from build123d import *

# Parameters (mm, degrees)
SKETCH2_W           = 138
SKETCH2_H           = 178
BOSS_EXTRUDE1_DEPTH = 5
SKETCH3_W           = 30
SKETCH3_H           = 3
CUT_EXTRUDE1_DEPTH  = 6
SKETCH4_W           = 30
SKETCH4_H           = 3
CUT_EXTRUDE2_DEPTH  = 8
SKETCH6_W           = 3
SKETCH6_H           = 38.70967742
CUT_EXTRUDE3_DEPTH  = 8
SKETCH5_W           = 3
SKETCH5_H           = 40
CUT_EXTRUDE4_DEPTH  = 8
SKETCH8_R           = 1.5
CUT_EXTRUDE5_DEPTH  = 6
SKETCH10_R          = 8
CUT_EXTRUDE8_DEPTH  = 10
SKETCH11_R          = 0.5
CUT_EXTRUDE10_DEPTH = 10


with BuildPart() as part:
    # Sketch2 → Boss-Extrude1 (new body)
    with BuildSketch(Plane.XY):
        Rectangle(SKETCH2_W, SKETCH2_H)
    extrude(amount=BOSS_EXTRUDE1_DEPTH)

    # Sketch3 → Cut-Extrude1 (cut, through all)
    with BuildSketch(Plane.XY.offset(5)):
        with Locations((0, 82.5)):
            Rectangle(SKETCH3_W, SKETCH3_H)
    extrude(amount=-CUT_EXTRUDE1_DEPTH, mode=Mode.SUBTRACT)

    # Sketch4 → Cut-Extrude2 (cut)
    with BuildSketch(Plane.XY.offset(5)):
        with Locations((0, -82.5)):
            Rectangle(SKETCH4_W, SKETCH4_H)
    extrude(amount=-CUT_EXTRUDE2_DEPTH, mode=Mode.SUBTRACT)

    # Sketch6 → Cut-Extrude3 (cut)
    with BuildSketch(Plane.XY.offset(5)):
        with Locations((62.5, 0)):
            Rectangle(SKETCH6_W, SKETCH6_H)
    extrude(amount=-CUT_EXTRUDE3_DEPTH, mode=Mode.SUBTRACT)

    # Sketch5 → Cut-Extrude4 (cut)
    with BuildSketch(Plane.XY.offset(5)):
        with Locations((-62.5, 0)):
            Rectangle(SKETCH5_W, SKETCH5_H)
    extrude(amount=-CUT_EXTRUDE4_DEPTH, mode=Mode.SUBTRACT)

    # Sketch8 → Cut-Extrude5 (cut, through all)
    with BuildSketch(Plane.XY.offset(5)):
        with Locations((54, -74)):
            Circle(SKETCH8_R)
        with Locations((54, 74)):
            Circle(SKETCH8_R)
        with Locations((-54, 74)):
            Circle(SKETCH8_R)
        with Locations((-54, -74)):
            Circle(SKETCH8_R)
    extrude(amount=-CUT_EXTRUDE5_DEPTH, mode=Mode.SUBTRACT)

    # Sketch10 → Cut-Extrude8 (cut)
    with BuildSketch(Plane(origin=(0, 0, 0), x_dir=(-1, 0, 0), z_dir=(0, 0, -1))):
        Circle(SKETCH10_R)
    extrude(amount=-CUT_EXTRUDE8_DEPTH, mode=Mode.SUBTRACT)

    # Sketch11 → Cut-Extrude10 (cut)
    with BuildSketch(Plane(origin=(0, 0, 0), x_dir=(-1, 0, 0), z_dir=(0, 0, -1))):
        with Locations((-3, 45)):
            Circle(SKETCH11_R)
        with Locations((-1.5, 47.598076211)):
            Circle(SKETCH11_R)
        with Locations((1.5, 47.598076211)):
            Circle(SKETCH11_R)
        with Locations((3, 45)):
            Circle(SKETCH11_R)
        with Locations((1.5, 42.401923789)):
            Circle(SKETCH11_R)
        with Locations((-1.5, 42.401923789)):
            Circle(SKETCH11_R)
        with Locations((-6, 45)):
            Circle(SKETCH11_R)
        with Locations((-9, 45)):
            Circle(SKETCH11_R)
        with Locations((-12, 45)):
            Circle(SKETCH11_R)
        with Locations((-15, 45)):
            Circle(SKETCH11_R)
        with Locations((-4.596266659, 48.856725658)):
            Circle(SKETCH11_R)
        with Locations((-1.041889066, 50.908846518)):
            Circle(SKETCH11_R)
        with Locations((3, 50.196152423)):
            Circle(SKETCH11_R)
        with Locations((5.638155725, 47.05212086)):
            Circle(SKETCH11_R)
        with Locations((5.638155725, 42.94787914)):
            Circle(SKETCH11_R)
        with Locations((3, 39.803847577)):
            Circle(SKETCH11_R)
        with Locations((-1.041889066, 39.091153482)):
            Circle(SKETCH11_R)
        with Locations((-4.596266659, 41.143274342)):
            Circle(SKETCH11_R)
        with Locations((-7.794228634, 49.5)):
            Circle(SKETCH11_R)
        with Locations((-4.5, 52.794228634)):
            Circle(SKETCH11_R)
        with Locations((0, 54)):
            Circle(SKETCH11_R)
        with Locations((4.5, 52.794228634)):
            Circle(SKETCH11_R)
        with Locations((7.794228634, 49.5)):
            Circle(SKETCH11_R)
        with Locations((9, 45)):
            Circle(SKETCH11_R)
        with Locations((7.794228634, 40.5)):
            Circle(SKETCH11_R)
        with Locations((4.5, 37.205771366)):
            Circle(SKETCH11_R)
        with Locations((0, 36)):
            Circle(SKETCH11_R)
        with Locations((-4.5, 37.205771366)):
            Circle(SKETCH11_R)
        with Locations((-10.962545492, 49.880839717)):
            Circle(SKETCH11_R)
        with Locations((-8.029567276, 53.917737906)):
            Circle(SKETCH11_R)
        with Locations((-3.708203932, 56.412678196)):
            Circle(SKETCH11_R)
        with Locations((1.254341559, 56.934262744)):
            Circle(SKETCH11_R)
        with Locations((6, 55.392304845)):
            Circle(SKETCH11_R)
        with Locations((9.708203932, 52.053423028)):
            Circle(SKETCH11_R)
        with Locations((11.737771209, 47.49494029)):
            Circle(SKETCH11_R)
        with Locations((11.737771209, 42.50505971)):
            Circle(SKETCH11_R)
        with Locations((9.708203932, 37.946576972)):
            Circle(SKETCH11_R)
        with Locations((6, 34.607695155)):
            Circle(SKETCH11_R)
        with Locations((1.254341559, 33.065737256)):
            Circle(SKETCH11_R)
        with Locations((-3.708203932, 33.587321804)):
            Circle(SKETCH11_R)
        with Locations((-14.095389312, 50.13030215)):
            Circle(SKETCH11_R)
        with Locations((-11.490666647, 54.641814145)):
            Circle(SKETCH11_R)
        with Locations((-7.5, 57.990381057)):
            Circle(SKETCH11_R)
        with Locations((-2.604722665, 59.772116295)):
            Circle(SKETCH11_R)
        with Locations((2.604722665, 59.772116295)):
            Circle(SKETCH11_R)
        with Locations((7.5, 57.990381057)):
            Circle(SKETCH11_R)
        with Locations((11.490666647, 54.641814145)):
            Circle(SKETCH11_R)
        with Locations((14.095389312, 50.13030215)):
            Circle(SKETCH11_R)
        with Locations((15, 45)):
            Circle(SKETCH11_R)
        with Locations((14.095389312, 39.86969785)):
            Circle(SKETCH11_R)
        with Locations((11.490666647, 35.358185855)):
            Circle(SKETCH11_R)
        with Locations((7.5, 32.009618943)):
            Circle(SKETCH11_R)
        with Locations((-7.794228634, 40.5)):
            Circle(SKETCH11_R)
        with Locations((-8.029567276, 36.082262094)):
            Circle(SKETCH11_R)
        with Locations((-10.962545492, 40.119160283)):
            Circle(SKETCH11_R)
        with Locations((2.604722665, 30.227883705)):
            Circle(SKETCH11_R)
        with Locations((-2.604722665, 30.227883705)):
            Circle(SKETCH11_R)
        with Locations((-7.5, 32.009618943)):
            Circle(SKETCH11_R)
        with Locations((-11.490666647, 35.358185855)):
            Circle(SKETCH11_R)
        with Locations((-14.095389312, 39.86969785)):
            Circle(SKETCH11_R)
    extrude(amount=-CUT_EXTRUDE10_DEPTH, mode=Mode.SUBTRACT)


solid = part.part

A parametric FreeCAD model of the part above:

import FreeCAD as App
import Part
import Sketcher

V = App.Vector


def add_polygon(sketch, points):
    """Adds a closed chain of lines whose ends are joined by coincident constraints."""
    first, n = sketch.GeometryCount, len(points)
    for a, b in zip(points, points[1:] + points[:1]):
        sketch.addGeometry(Part.LineSegment(App.Vector(*a, 0), App.Vector(*b, 0)), False)
    for i in range(n):
        sketch.addConstraint(Sketcher.Constraint("Coincident", first + i, 2, first + (i + 1) % n, 1))

doc = App.newDocument("Part")
body = doc.addObject("PartDesign::Body", "Body")

# Sketch on XY plane
sketch1 = body.newObject("Sketcher::SketchObject", "Sketch")
sketch1.AttachmentSupport = (doc.getObject("XY_Plane"), [""])
sketch1.MapMode = "FlatFace"
add_polygon(sketch1, [(-69, 89), (-69, -89), (69, -89), (69, 89)])  # lines 0-3
sketch1.addConstraint([
    Sketcher.Constraint("Vertical", 0),
    Sketcher.Constraint("Horizontal", 1),
    Sketcher.Constraint("Vertical", 2),
    Sketcher.Constraint("Horizontal", 3),
    Sketcher.Constraint("Symmetric", 0, 2, 2, 2, -1, 1),
    Sketcher.Constraint("DistanceX", 1, 1, 1, 2, 138.0),
    Sketcher.Constraint("DistanceY", 0, 2, 0, 1, 178.0),
])
pad1 = body.newObject("PartDesign::Pad", "Pad")
pad1.Profile = sketch1
pad1.Length = 5

# Sketch on XY plane
sketch2 = body.newObject("Sketcher::SketchObject", "Sketch001")
sketch2.AttachmentSupport = (doc.getObject("XY_Plane"), [""])
sketch2.MapMode = "FlatFace"
sketch2.AttachmentOffset = App.Placement(V(0, 0, 5), App.Rotation())
add_polygon(sketch2, [(-15, 84), (-15, 81), (15, 81), (15, 84)])  # lines 0-3
sketch2.addConstraint([
    Sketcher.Constraint("Vertical", 0),
    Sketcher.Constraint("Horizontal", 1),
    Sketcher.Constraint("Vertical", 2),
    Sketcher.Constraint("Horizontal", 3),
    Sketcher.Constraint("DistanceX", 1, 1, 1, 2, 30.0),
    Sketcher.Constraint("DistanceY", 0, 2, 0, 1, 3.0),
    Sketcher.Constraint("DistanceX", 0, 2, -1, 1, 15.0),
    Sketcher.Constraint("DistanceY", -1, 1, 0, 2, 81.0),
])
pocket1 = body.newObject("PartDesign::Pocket", "Pocket")
pocket1.Profile = sketch2
pocket1.Type = "ThroughAll"

# Sketch on XY plane
sketch3 = body.newObject("Sketcher::SketchObject", "Sketch002")
sketch3.AttachmentSupport = (doc.getObject("XY_Plane"), [""])
sketch3.MapMode = "FlatFace"
sketch3.AttachmentOffset = App.Placement(V(0, 0, 5), App.Rotation())
add_polygon(sketch3, [(-15, -81), (-15, -84), (15, -84), (15, -81)])  # lines 0-3
sketch3.addConstraint([
    Sketcher.Constraint("Vertical", 0),
    Sketcher.Constraint("Horizontal", 1),
    Sketcher.Constraint("Vertical", 2),
    Sketcher.Constraint("Horizontal", 3),
    Sketcher.Constraint("DistanceX", 1, 1, 1, 2, 30.0),
    Sketcher.Constraint("DistanceY", 0, 2, 0, 1, 3.0),
    Sketcher.Constraint("DistanceX", 0, 2, -1, 1, 15.0),
    Sketcher.Constraint("DistanceY", 0, 2, -1, 1, 84.0),
])
pocket2 = body.newObject("PartDesign::Pocket", "Pocket001")
pocket2.Profile = sketch3
pocket2.Length = 8

# Sketch on XY plane
sketch4 = body.newObject("Sketcher::SketchObject", "Sketch003")
sketch4.AttachmentSupport = (doc.getObject("XY_Plane"), [""])
sketch4.MapMode = "FlatFace"
sketch4.AttachmentOffset = App.Placement(V(0, 0, 5), App.Rotation())
add_polygon(sketch4, [(61, 19.4), (61, -19.4), (64, -19.4), (64, 19.4)])  # lines 0-3
sketch4.addConstraint([
    Sketcher.Constraint("Vertical", 0),
    Sketcher.Constraint("Horizontal", 1),
    Sketcher.Constraint("Vertical", 2),
    Sketcher.Constraint("Horizontal", 3),
    Sketcher.Constraint("DistanceX", 1, 1, 1, 2, 3.0),
    Sketcher.Constraint("DistanceX", -1, 1, 0, 2, 61.0),
    Sketcher.Constraint("DistanceY", 0, 2, 0, 1, 38.709677),
    Sketcher.Constraint("DistanceY", 0, 2, -1, 1, 19.354839),
])
pocket3 = body.newObject("PartDesign::Pocket", "Pocket002")
pocket3.Profile = sketch4
pocket3.Length = 8

# Sketch on XY plane
sketch5 = body.newObject("Sketcher::SketchObject", "Sketch004")
sketch5.AttachmentSupport = (doc.getObject("XY_Plane"), [""])
sketch5.MapMode = "FlatFace"
sketch5.AttachmentOffset = App.Placement(V(0, 0, 5), App.Rotation())
add_polygon(sketch5, [(-64, 20), (-64, -20), (-61, -20), (-61, 20)])  # lines 0-3
sketch5.addConstraint([
    Sketcher.Constraint("Vertical", 0),
    Sketcher.Constraint("Horizontal", 1),
    Sketcher.Constraint("Vertical", 2),
    Sketcher.Constraint("Horizontal", 3),
    Sketcher.Constraint("DistanceX", 1, 1, 1, 2, 3.0),
    Sketcher.Constraint("DistanceY", 0, 2, 0, 1, 40.0),
    Sketcher.Constraint("DistanceX", 0, 2, -1, 1, 64.0),
    Sketcher.Constraint("DistanceY", 0, 2, -1, 1, 20.0),
])
pocket4 = body.newObject("PartDesign::Pocket", "Pocket003")
pocket4.Profile = sketch5
pocket4.Length = 8

# Sketch on XY plane
sketch6 = body.newObject("Sketcher::SketchObject", "Sketch005")
sketch6.AttachmentSupport = (doc.getObject("XY_Plane"), [""])
sketch6.MapMode = "FlatFace"
sketch6.AttachmentOffset = App.Placement(V(0, 0, 5), App.Rotation())
sketch6.addGeometry([
    Part.Circle(V(54, -74, 0), V(0, 0, 1), 1.5),
    Part.Circle(V(54, 74, 0), V(0, 0, 1), 1.5),
    Part.Circle(V(-54, 74, 0), V(0, 0, 1), 1.5),
    Part.Circle(V(-54, -74, 0), V(0, 0, 1), 1.5),
], False)
sketch6.addConstraint([
    Sketcher.Constraint("Equal", 0, 1),
    Sketcher.Constraint("Equal", 1, 2),
    Sketcher.Constraint("Equal", 2, 3),
    Sketcher.Constraint("Symmetric", 0, 3, 2, 3, -1, 1),
    Sketcher.Constraint("Symmetric", 1, 3, 3, 3, -1, 1),
    Sketcher.Constraint("Symmetric", 1, 3, 2, 3, -2),
    Sketcher.Constraint("Diameter", 0, 3.0),
    Sketcher.Constraint("DistanceX", -1, 1, 0, 3, 54.0),
    Sketcher.Constraint("DistanceY", 0, 3, -1, 1, 74.0),
])
pocket5 = body.newObject("PartDesign::Pocket", "Pocket004")
pocket5.Profile = sketch6
pocket5.Type = "ThroughAll"

# Sketch on XY plane
sketch7 = body.newObject("Sketcher::SketchObject", "Sketch006")
sketch7.AttachmentSupport = (doc.getObject("XY_Plane"), [""])
sketch7.MapMode = "FlatFace"
sketch7.addGeometry(Part.Circle(V(0, 0, 0), V(0, 0, 1), 8), False)
sketch7.addConstraint([
    Sketcher.Constraint("Coincident", 0, 3, -1, 1),
    Sketcher.Constraint("Diameter", 0, 16.0),
])
pocket6 = body.newObject("PartDesign::Pocket", "Pocket005")
pocket6.Profile = sketch7
pocket6.Length = 10
pocket6.Reversed = True

# Sketch on XY plane
sketch8 = body.newObject("Sketcher::SketchObject", "Sketch007")
sketch8.AttachmentSupport = (doc.getObject("XY_Plane"), [""])
sketch8.MapMode = "FlatFace"
sketch8.addGeometry([
    Part.Circle(V(3, 45, 0), V(0, 0, 1), 0.5),  # 0
    Part.Circle(V(1.5, 47.6, 0), V(0, 0, 1), 0.5),  # 1
    Part.Circle(V(-1.5, 47.6, 0), V(0, 0, 1), 0.5),  # 2
    Part.Circle(V(-3, 45, 0), V(0, 0, 1), 0.5),  # 3
    Part.Circle(V(-1.5, 42.4, 0), V(0, 0, 1), 0.5),  # 4
    Part.Circle(V(1.5, 42.4, 0), V(0, 0, 1), 0.5),  # 5
    Part.Circle(V(6, 45, 0), V(0, 0, 1), 0.5),  # 6
    Part.Circle(V(9, 45, 0), V(0, 0, 1), 0.5),  # 7
    Part.Circle(V(12, 45, 0), V(0, 0, 1), 0.5),  # 8
    Part.Circle(V(15, 45, 0), V(0, 0, 1), 0.5),  # 9
    Part.Circle(V(4.6, 48.9, 0), V(0, 0, 1), 0.5),  # 10
    Part.Circle(V(1, 50.9, 0), V(0, 0, 1), 0.5),  # 11
    Part.Circle(V(-3, 50.2, 0), V(0, 0, 1), 0.5),  # 12
    Part.Circle(V(-5.6, 47.1, 0), V(0, 0, 1), 0.5),  # 13
    Part.Circle(V(-5.6, 42.9, 0), V(0, 0, 1), 0.5),  # 14
    Part.Circle(V(-3, 39.8, 0), V(0, 0, 1), 0.5),  # 15
    Part.Circle(V(1, 39.1, 0), V(0, 0, 1), 0.5),  # 16
    Part.Circle(V(4.6, 41.1, 0), V(0, 0, 1), 0.5),  # 17
    Part.Circle(V(7.8, 49.5, 0), V(0, 0, 1), 0.5),  # 18
    Part.Circle(V(4.5, 52.8, 0), V(0, 0, 1), 0.5),  # 19
    Part.Circle(V(0, 54, 0), V(0, 0, 1), 0.5),  # 20
    Part.Circle(V(-4.5, 52.8, 0), V(0, 0, 1), 0.5),  # 21
    Part.Circle(V(-7.8, 49.5, 0), V(0, 0, 1), 0.5),  # 22
    Part.Circle(V(-9, 45, 0), V(0, 0, 1), 0.5),  # 23
    Part.Circle(V(-7.8, 40.5, 0), V(0, 0, 1), 0.5),  # 24
    Part.Circle(V(-4.5, 37.2, 0), V(0, 0, 1), 0.5),  # 25
    Part.Circle(V(0, 36, 0), V(0, 0, 1), 0.5),  # 26
    Part.Circle(V(4.5, 37.2, 0), V(0, 0, 1), 0.5),  # 27
    Part.Circle(V(11, 49.9, 0), V(0, 0, 1), 0.5),  # 28
    Part.Circle(V(8, 53.9, 0), V(0, 0, 1), 0.5),  # 29
    Part.Circle(V(3.7, 56.4, 0), V(0, 0, 1), 0.5),  # 30
    Part.Circle(V(-1.3, 56.9, 0), V(0, 0, 1), 0.5),  # 31
    Part.Circle(V(-6, 55.4, 0), V(0, 0, 1), 0.5),  # 32
    Part.Circle(V(-9.7, 52.1, 0), V(0, 0, 1), 0.5),  # 33
    Part.Circle(V(-11.7, 47.5, 0), V(0, 0, 1), 0.5),  # 34
    Part.Circle(V(-11.7, 42.5, 0), V(0, 0, 1), 0.5),  # 35
    Part.Circle(V(-9.7, 37.9, 0), V(0, 0, 1), 0.5),  # 36
    Part.Circle(V(-6, 34.6, 0), V(0, 0, 1), 0.5),  # 37
    Part.Circle(V(-1.3, 33.1, 0), V(0, 0, 1), 0.5),  # 38
    Part.Circle(V(3.7, 33.6, 0), V(0, 0, 1), 0.5),  # 39
    Part.Circle(V(14.1, 50.1, 0), V(0, 0, 1), 0.5),  # 40
    Part.Circle(V(11.5, 54.6, 0), V(0, 0, 1), 0.5),  # 41
    Part.Circle(V(7.5, 58, 0), V(0, 0, 1), 0.5),  # 42
    Part.Circle(V(2.6, 59.8, 0), V(0, 0, 1), 0.5),  # 43
    Part.Circle(V(-2.6, 59.8, 0), V(0, 0, 1), 0.5),  # 44
    Part.Circle(V(-7.5, 58, 0), V(0, 0, 1), 0.5),  # 45
    Part.Circle(V(-11.5, 54.6, 0), V(0, 0, 1), 0.5),  # 46
    Part.Circle(V(-14.1, 50.1, 0), V(0, 0, 1), 0.5),  # 47
    Part.Circle(V(-15, 45, 0), V(0, 0, 1), 0.5),  # 48
    Part.Circle(V(-14.1, 39.9, 0), V(0, 0, 1), 0.5),  # 49
    Part.Circle(V(-11.5, 35.4, 0), V(0, 0, 1), 0.5),  # 50
    Part.Circle(V(-7.5, 32, 0), V(0, 0, 1), 0.5),  # 51
    Part.Circle(V(7.8, 40.5, 0), V(0, 0, 1), 0.5),  # 52
    Part.Circle(V(8, 36.1, 0), V(0, 0, 1), 0.5),  # 53
    Part.Circle(V(11, 40.1, 0), V(0, 0, 1), 0.5),  # 54
    Part.Circle(V(-2.6, 30.2, 0), V(0, 0, 1), 0.5),  # 55
    Part.Circle(V(2.6, 30.2, 0), V(0, 0, 1), 0.5),  # 56
    Part.Circle(V(7.5, 32, 0), V(0, 0, 1), 0.5),  # 57
    Part.Circle(V(11.5, 35.4, 0), V(0, 0, 1), 0.5),  # 58
    Part.Circle(V(14.1, 39.9, 0), V(0, 0, 1), 0.5),  # 59
], False)
sketch8.addConstraint([
    Sketcher.Constraint("Equal", 0, 1),
    Sketcher.Constraint("Equal", 1, 2),
    Sketcher.Constraint("Equal", 2, 3),
    Sketcher.Constraint("Equal", 3, 4),
    Sketcher.Constraint("Equal", 4, 5),
    Sketcher.Constraint("Equal", 5, 6),
    Sketcher.Constraint("Equal", 6, 7),
    Sketcher.Constraint("Equal", 7, 8),
    Sketcher.Constraint("Equal", 8, 9),
    Sketcher.Constraint("Equal", 9, 10),
    Sketcher.Constraint("Equal", 10, 11),
    Sketcher.Constraint("Equal", 11, 12),
    Sketcher.Constraint("Equal", 12, 13),
    Sketcher.Constraint("Equal", 13, 14),
    Sketcher.Constraint("Equal", 14, 15),
    Sketcher.Constraint("Equal", 15, 16),
    Sketcher.Constraint("Equal", 16, 17),
    Sketcher.Constraint("Equal", 17, 18),
    Sketcher.Constraint("Equal", 18, 19),
    Sketcher.Constraint("Equal", 19, 20),
    Sketcher.Constraint("Equal", 20, 21),
    Sketcher.Constraint("Equal", 21, 22),
    Sketcher.Constraint("Equal", 22, 23),
    Sketcher.Constraint("Equal", 23, 24),
    Sketcher.Constraint("Equal", 24, 25),
    Sketcher.Constraint("Equal", 25, 26),
    Sketcher.Constraint("Equal", 26, 27),
    Sketcher.Constraint("Equal", 27, 28),
    Sketcher.Constraint("Equal", 28, 29),
    Sketcher.Constraint("Equal", 29, 30),
    Sketcher.Constraint("Equal", 30, 31),
    Sketcher.Constraint("Equal", 31, 32),
    Sketcher.Constraint("Equal", 32, 33),
    Sketcher.Constraint("Equal", 33, 34),
    Sketcher.Constraint("Equal", 34, 35),
    Sketcher.Constraint("Equal", 35, 36),
    Sketcher.Constraint("Equal", 36, 37),
    Sketcher.Constraint("Equal", 37, 38),
    Sketcher.Constraint("Equal", 38, 39),
    Sketcher.Constraint("Equal", 39, 40),
    Sketcher.Constraint("Equal", 40, 41),
    Sketcher.Constraint("Equal", 41, 42),
    Sketcher.Constraint("Equal", 42, 43),
    Sketcher.Constraint("Equal", 43, 44),
    Sketcher.Constraint("Equal", 44, 45),
    Sketcher.Constraint("Equal", 45, 46),
    Sketcher.Constraint("Equal", 46, 47),
    Sketcher.Constraint("Equal", 47, 48),
    Sketcher.Constraint("Equal", 48, 49),
    Sketcher.Constraint("Equal", 49, 50),
    Sketcher.Constraint("Equal", 50, 51),
    Sketcher.Constraint("Equal", 51, 52),
    Sketcher.Constraint("Equal", 52, 53),
    Sketcher.Constraint("Equal", 53, 54),
    Sketcher.Constraint("Equal", 54, 55),
    Sketcher.Constraint("Equal", 55, 56),
    Sketcher.Constraint("Equal", 56, 57),
    Sketcher.Constraint("Equal", 57, 58),
    Sketcher.Constraint("Equal", 58, 59),
    Sketcher.Constraint("Symmetric", 1, 3, 2, 3, -2),
    Sketcher.Constraint("Symmetric", 0, 3, 3, 3, -2),
    Sketcher.Constraint("Symmetric", 4, 3, 5, 3, -2),
    Sketcher.Constraint("Symmetric", 19, 3, 21, 3, -2),
    Sketcher.Constraint("Symmetric", 18, 3, 22, 3, -2),
    Sketcher.Constraint("Symmetric", 7, 3, 23, 3, -2),
    Sketcher.Constraint("Symmetric", 25, 3, 27, 3, -2),
    Sketcher.Constraint("Symmetric", 43, 3, 44, 3, -2),
    Sketcher.Constraint("Symmetric", 42, 3, 45, 3, -2),
    Sketcher.Constraint("Symmetric", 41, 3, 46, 3, -2),
    Sketcher.Constraint("Symmetric", 40, 3, 47, 3, -2),
    Sketcher.Constraint("Symmetric", 9, 3, 48, 3, -2),
    Sketcher.Constraint("Symmetric", 24, 3, 52, 3, -2),
    Sketcher.Constraint("Symmetric", 55, 3, 56, 3, -2),
    Sketcher.Constraint("Symmetric", 51, 3, 57, 3, -2),
    Sketcher.Constraint("Symmetric", 50, 3, 58, 3, -2),
    Sketcher.Constraint("Symmetric", 49, 3, 59, 3, -2),
    Sketcher.Constraint("PointOnObject", 20, 3, -2),
    Sketcher.Constraint("PointOnObject", 26, 3, -2),
    Sketcher.Constraint("Horizontal", 3, 3, 6, 3),
    Sketcher.Constraint("Horizontal", 6, 3, 7, 3),
    Sketcher.Constraint("Horizontal", 7, 3, 8, 3),
    Sketcher.Constraint("Horizontal", 8, 3, 9, 3),
    Sketcher.Constraint("Vertical", 2, 3, 4, 3),
    Sketcher.Constraint("Vertical", 3, 3, 12, 3),
    Sketcher.Constraint("Vertical", 13, 3, 14, 3),
    Sketcher.Constraint("Vertical", 12, 3, 15, 3),
    Sketcher.Constraint("Vertical", 11, 3, 16, 3),
    Sketcher.Constraint("Vertical", 10, 3, 17, 3),
    Sketcher.Constraint("Vertical", 22, 3, 24, 3),
    Sketcher.Constraint("Vertical", 21, 3, 25, 3),
    Sketcher.Constraint("Vertical", 34, 3, 35, 3),
    Sketcher.Constraint("Vertical", 33, 3, 36, 3),
    Sketcher.Constraint("Vertical", 32, 3, 37, 3),
    Sketcher.Constraint("Vertical", 31, 3, 38, 3),
    Sketcher.Constraint("Vertical", 30, 3, 39, 3),
    Sketcher.Constraint("Vertical", 47, 3, 49, 3),
    Sketcher.Constraint("Vertical", 46, 3, 50, 3),
    Sketcher.Constraint("Vertical", 45, 3, 51, 3),
    Sketcher.Constraint("Vertical", 29, 3, 53, 3),
    Sketcher.Constraint("Vertical", 28, 3, 54, 3),
    Sketcher.Constraint("Vertical", 44, 3, 55, 3),
    Sketcher.Constraint("Diameter", 0, 1.0),
    Sketcher.Constraint("DistanceX", -1, 1, 0, 3, 3.0),
    Sketcher.Constraint("DistanceY", -1, 1, 0, 3, 45.0),
    Sketcher.Constraint("DistanceX", -1, 1, 6, 3, 6.0),
    Sketcher.Constraint("DistanceX", -1, 1, 7, 3, 9.0),
    Sketcher.Constraint("DistanceX", -1, 1, 8, 3, 12.0),
    Sketcher.Constraint("DistanceX", -1, 1, 9, 3, 15.0),
    Sketcher.Constraint("DistanceY", -1, 1, 20, 3, 54.0),
    Sketcher.Constraint("DistanceY", -1, 1, 26, 3, 36.0),
    Sketcher.Constraint("DistanceX", 32, 3, -1, 1, 6.0),
    Sketcher.Constraint("DistanceX", 2, 3, 1, 3, 3.0),
    Sketcher.Constraint("DistanceX", 1, 3, 19, 3, 3.0),
    Sketcher.Constraint("DistanceX", 19, 3, 42, 3, 3.0),
    Sketcher.Constraint("DistanceY", -1, 1, 18, 3, 49.5),
    Sketcher.Constraint("DistanceY", -1, 1, 24, 3, 40.5),
    Sketcher.Constraint("DistanceY", 28, 3, 29, 3, 4.036898),
    Sketcher.Constraint("DistanceX", 10, 3, 29, 3, 3.433301),
    Sketcher.Constraint("DistanceX", 29, 3, 41, 3, 3.461099),
    Sketcher.Constraint("DistanceY", 53, 3, 54, 3, 4.036898),
    Sketcher.Constraint("DistanceX", -1, 1, 11, 3, 1.041889),
    Sketcher.Constraint("DistanceY", -1, 1, 13, 3, 47.052121),
    Sketcher.Constraint("DistanceY", -1, 1, 14, 3, 42.947879),
    Sketcher.Constraint("DistanceX", -1, 1, 18, 3, 7.794229),
    Sketcher.Constraint("DistanceY", -1, 1, 19, 3, 52.794229),
    Sketcher.Constraint("DistanceY", -1, 1, 25, 3, 37.205771),
    Sketcher.Constraint("DistanceY", -1, 1, 28, 3, 49.88084),
    Sketcher.Constraint("DistanceY", -1, 1, 30, 3, 56.412678),
    Sketcher.Constraint("DistanceX", 31, 3, -1, 1, 1.254342),
    Sketcher.Constraint("DistanceX", 34, 3, -1, 1, 11.737771),
    Sketcher.Constraint("DistanceY", -1, 1, 34, 3, 47.49494),
    Sketcher.Constraint("DistanceY", -1, 1, 35, 3, 42.50506),
    Sketcher.Constraint("DistanceY", -1, 1, 39, 3, 33.587322),
    Sketcher.Constraint("DistanceX", -1, 1, 40, 3, 14.095389),
    Sketcher.Constraint("DistanceY", -1, 1, 42, 3, 57.990381),
    Sketcher.Constraint("DistanceY", -1, 1, 51, 3, 32.009619),
    Sketcher.Constraint("DistanceY", -1, 1, 54, 3, 40.11916),
    Sketcher.Constraint("DistanceY", 1, 3, 10, 3, 1.258649),
    Sketcher.Constraint("DistanceY", 1, 3, 11, 3, 3.31077),
    Sketcher.Constraint("DistanceY", 13, 3, 12, 3, 3.144032),
    Sketcher.Constraint("DistanceY", 15, 3, 14, 3, 3.144032),
    Sketcher.Constraint("DistanceY", 16, 3, 5, 3, 3.31077),
    Sketcher.Constraint("DistanceY", 17, 3, 5, 3, 1.258649),
    Sketcher.Constraint("DistanceX", 10, 3, 18, 3, 3.197962),
    Sketcher.Constraint("DistanceX", 10, 3, 28, 3, 6.366279),
    Sketcher.Constraint("DistanceY", 11, 3, 29, 3, 3.008891),
    Sketcher.Constraint("DistanceY", 12, 3, 31, 3, 6.73811),
    Sketcher.Constraint("DistanceY", 33, 3, 32, 3, 3.338882),
    Sketcher.Constraint("DistanceX", 33, 3, 13, 3, 4.070048),
    Sketcher.Constraint("DistanceY", 12, 3, 33, 3, 1.857271),
    Sketcher.Constraint("DistanceY", 36, 3, 15, 3, 1.857271),
    Sketcher.Constraint("DistanceY", 37, 3, 36, 3, 3.338882),
    Sketcher.Constraint("DistanceY", 38, 3, 15, 3, 6.73811),
    Sketcher.Constraint("DistanceY", 39, 3, 16, 3, 5.503832),
    Sketcher.Constraint("DistanceY", 40, 3, 41, 3, 4.511512),
    Sketcher.Constraint("DistanceX", 43, 3, 30, 3, 1.103481),
    Sketcher.Constraint("DistanceY", 30, 3, 43, 3, 3.359438),
    Sketcher.Constraint("DistanceX", 44, 3, 31, 3, 1.350381),
    Sketcher.Constraint("DistanceY", 33, 3, 46, 3, 2.588391),
    Sketcher.Constraint("DistanceY", 49, 3, 35, 3, 2.635362),
    Sketcher.Constraint("DistanceY", 50, 3, 36, 3, 2.588391),
    Sketcher.Constraint("DistanceY", 55, 3, 37, 3, 4.379811),
    Sketcher.Constraint("DistanceX", 13, 3, -1, 1, 5.638156),
])
pocket7 = body.newObject("PartDesign::Pocket", "Pocket006")
pocket7.Profile = sketch8
pocket7.Length = 10
pocket7.Reversed = True

doc.recompute()
